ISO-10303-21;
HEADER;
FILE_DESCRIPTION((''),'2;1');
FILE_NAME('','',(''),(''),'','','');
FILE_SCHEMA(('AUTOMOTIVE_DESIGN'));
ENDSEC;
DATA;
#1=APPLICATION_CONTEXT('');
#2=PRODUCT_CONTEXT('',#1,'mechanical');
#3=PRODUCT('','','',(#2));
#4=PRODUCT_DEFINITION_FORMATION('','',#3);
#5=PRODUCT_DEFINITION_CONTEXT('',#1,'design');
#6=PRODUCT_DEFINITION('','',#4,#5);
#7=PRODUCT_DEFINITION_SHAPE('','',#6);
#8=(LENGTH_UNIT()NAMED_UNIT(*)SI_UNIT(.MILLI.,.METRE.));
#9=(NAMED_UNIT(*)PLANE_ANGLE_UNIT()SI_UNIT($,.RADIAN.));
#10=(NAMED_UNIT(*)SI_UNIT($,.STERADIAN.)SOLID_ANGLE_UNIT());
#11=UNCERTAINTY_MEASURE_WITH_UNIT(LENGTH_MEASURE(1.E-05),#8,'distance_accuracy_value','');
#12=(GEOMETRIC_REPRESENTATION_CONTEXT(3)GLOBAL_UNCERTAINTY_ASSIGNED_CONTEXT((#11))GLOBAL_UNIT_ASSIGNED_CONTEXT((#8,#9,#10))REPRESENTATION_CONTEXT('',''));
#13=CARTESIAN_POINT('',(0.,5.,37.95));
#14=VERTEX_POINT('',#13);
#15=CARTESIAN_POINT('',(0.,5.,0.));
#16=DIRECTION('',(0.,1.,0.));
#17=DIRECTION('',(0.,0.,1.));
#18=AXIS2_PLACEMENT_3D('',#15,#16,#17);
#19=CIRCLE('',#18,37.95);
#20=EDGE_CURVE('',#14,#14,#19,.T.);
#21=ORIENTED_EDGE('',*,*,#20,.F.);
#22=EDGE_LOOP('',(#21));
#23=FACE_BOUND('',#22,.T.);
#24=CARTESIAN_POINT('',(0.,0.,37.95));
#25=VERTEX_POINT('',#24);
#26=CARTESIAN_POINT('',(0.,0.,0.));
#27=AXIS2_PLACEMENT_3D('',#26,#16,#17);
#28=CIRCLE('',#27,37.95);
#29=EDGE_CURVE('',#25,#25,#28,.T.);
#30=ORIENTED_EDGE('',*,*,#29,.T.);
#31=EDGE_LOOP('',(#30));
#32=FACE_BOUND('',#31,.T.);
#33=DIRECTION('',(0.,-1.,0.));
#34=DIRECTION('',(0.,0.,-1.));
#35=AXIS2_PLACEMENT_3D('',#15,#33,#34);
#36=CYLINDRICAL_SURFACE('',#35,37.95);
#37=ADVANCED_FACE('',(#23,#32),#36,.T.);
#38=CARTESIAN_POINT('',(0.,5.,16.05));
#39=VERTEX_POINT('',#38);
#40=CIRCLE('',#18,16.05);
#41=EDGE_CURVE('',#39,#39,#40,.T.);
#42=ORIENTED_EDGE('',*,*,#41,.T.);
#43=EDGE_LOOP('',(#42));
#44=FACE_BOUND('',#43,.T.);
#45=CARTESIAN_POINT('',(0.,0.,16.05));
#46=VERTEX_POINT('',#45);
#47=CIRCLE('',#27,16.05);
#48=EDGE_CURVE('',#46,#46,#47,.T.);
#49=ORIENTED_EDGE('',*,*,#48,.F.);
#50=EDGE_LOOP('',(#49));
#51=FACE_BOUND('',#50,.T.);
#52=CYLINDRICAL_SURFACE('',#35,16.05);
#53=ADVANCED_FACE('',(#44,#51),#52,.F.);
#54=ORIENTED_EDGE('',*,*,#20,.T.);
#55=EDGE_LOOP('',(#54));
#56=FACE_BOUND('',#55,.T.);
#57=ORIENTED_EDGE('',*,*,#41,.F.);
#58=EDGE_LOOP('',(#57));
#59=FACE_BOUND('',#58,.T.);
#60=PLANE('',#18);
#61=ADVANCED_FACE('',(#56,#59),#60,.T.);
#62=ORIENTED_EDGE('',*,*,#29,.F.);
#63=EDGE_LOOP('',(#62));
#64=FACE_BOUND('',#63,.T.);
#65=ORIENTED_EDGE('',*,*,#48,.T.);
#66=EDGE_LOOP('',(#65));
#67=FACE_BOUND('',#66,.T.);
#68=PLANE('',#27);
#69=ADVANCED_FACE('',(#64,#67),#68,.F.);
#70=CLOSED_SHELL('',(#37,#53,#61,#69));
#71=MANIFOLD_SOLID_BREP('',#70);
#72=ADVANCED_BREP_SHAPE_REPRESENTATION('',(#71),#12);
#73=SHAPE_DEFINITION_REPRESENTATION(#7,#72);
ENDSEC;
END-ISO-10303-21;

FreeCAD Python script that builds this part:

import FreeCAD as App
import Part
import Sketcher
from FreeCAD import Vector

doc = App.newDocument("Part")
params = doc.addObject("Spreadsheet::Sheet", "Params")
for row, (alias, value) in enumerate([
    ("sketch1_diameter", "75.9 mm"),
    ("sketch1_diameter2", "32.1 mm"),
    ("pad1_length", "5 mm"),
], start=1):
    params.set(f"A{row}", alias)
    params.set(f"B{row}", "=" + value)
    params.setAlias(f"B{row}", alias)

body = doc.addObject("PartDesign::Body", "Body")

sketch1 = body.newObject("Sketcher::SketchObject", "Sketch")
sketch1.AttachmentSupport = (doc.getObject("XZ_Plane"), [""])
sketch1.MapMode = "FlatFace"
sketch1.addGeometry([
    Part.Circle(Vector(0, 0, 0), Vector(0, 0, 1), 37.95),
    Part.Circle(Vector(0, 0, 0), Vector(0, 0, 1), 16.05),
], False)
sketch1.addConstraint([
    Sketcher.Constraint("Coincident", 0, 3, -1, 1),
    Sketcher.Constraint("Coincident", 1, 3, -1, 1),
    Sketcher.Constraint("Diameter", 0, 75.9),
    Sketcher.Constraint("Diameter", 1, 32.1),
])
sketch1.setExpression("Constraints[2]", "Params.sketch1_diameter")
sketch1.setExpression("Constraints[3]", "Params.sketch1_diameter2")
pad1 = body.newObject("PartDesign::Pad", "Pad")
pad1.Profile = sketch1
pad1.setExpression("Length", "Params.pad1_length")
pad1.Reversed = True

doc.recompute()
